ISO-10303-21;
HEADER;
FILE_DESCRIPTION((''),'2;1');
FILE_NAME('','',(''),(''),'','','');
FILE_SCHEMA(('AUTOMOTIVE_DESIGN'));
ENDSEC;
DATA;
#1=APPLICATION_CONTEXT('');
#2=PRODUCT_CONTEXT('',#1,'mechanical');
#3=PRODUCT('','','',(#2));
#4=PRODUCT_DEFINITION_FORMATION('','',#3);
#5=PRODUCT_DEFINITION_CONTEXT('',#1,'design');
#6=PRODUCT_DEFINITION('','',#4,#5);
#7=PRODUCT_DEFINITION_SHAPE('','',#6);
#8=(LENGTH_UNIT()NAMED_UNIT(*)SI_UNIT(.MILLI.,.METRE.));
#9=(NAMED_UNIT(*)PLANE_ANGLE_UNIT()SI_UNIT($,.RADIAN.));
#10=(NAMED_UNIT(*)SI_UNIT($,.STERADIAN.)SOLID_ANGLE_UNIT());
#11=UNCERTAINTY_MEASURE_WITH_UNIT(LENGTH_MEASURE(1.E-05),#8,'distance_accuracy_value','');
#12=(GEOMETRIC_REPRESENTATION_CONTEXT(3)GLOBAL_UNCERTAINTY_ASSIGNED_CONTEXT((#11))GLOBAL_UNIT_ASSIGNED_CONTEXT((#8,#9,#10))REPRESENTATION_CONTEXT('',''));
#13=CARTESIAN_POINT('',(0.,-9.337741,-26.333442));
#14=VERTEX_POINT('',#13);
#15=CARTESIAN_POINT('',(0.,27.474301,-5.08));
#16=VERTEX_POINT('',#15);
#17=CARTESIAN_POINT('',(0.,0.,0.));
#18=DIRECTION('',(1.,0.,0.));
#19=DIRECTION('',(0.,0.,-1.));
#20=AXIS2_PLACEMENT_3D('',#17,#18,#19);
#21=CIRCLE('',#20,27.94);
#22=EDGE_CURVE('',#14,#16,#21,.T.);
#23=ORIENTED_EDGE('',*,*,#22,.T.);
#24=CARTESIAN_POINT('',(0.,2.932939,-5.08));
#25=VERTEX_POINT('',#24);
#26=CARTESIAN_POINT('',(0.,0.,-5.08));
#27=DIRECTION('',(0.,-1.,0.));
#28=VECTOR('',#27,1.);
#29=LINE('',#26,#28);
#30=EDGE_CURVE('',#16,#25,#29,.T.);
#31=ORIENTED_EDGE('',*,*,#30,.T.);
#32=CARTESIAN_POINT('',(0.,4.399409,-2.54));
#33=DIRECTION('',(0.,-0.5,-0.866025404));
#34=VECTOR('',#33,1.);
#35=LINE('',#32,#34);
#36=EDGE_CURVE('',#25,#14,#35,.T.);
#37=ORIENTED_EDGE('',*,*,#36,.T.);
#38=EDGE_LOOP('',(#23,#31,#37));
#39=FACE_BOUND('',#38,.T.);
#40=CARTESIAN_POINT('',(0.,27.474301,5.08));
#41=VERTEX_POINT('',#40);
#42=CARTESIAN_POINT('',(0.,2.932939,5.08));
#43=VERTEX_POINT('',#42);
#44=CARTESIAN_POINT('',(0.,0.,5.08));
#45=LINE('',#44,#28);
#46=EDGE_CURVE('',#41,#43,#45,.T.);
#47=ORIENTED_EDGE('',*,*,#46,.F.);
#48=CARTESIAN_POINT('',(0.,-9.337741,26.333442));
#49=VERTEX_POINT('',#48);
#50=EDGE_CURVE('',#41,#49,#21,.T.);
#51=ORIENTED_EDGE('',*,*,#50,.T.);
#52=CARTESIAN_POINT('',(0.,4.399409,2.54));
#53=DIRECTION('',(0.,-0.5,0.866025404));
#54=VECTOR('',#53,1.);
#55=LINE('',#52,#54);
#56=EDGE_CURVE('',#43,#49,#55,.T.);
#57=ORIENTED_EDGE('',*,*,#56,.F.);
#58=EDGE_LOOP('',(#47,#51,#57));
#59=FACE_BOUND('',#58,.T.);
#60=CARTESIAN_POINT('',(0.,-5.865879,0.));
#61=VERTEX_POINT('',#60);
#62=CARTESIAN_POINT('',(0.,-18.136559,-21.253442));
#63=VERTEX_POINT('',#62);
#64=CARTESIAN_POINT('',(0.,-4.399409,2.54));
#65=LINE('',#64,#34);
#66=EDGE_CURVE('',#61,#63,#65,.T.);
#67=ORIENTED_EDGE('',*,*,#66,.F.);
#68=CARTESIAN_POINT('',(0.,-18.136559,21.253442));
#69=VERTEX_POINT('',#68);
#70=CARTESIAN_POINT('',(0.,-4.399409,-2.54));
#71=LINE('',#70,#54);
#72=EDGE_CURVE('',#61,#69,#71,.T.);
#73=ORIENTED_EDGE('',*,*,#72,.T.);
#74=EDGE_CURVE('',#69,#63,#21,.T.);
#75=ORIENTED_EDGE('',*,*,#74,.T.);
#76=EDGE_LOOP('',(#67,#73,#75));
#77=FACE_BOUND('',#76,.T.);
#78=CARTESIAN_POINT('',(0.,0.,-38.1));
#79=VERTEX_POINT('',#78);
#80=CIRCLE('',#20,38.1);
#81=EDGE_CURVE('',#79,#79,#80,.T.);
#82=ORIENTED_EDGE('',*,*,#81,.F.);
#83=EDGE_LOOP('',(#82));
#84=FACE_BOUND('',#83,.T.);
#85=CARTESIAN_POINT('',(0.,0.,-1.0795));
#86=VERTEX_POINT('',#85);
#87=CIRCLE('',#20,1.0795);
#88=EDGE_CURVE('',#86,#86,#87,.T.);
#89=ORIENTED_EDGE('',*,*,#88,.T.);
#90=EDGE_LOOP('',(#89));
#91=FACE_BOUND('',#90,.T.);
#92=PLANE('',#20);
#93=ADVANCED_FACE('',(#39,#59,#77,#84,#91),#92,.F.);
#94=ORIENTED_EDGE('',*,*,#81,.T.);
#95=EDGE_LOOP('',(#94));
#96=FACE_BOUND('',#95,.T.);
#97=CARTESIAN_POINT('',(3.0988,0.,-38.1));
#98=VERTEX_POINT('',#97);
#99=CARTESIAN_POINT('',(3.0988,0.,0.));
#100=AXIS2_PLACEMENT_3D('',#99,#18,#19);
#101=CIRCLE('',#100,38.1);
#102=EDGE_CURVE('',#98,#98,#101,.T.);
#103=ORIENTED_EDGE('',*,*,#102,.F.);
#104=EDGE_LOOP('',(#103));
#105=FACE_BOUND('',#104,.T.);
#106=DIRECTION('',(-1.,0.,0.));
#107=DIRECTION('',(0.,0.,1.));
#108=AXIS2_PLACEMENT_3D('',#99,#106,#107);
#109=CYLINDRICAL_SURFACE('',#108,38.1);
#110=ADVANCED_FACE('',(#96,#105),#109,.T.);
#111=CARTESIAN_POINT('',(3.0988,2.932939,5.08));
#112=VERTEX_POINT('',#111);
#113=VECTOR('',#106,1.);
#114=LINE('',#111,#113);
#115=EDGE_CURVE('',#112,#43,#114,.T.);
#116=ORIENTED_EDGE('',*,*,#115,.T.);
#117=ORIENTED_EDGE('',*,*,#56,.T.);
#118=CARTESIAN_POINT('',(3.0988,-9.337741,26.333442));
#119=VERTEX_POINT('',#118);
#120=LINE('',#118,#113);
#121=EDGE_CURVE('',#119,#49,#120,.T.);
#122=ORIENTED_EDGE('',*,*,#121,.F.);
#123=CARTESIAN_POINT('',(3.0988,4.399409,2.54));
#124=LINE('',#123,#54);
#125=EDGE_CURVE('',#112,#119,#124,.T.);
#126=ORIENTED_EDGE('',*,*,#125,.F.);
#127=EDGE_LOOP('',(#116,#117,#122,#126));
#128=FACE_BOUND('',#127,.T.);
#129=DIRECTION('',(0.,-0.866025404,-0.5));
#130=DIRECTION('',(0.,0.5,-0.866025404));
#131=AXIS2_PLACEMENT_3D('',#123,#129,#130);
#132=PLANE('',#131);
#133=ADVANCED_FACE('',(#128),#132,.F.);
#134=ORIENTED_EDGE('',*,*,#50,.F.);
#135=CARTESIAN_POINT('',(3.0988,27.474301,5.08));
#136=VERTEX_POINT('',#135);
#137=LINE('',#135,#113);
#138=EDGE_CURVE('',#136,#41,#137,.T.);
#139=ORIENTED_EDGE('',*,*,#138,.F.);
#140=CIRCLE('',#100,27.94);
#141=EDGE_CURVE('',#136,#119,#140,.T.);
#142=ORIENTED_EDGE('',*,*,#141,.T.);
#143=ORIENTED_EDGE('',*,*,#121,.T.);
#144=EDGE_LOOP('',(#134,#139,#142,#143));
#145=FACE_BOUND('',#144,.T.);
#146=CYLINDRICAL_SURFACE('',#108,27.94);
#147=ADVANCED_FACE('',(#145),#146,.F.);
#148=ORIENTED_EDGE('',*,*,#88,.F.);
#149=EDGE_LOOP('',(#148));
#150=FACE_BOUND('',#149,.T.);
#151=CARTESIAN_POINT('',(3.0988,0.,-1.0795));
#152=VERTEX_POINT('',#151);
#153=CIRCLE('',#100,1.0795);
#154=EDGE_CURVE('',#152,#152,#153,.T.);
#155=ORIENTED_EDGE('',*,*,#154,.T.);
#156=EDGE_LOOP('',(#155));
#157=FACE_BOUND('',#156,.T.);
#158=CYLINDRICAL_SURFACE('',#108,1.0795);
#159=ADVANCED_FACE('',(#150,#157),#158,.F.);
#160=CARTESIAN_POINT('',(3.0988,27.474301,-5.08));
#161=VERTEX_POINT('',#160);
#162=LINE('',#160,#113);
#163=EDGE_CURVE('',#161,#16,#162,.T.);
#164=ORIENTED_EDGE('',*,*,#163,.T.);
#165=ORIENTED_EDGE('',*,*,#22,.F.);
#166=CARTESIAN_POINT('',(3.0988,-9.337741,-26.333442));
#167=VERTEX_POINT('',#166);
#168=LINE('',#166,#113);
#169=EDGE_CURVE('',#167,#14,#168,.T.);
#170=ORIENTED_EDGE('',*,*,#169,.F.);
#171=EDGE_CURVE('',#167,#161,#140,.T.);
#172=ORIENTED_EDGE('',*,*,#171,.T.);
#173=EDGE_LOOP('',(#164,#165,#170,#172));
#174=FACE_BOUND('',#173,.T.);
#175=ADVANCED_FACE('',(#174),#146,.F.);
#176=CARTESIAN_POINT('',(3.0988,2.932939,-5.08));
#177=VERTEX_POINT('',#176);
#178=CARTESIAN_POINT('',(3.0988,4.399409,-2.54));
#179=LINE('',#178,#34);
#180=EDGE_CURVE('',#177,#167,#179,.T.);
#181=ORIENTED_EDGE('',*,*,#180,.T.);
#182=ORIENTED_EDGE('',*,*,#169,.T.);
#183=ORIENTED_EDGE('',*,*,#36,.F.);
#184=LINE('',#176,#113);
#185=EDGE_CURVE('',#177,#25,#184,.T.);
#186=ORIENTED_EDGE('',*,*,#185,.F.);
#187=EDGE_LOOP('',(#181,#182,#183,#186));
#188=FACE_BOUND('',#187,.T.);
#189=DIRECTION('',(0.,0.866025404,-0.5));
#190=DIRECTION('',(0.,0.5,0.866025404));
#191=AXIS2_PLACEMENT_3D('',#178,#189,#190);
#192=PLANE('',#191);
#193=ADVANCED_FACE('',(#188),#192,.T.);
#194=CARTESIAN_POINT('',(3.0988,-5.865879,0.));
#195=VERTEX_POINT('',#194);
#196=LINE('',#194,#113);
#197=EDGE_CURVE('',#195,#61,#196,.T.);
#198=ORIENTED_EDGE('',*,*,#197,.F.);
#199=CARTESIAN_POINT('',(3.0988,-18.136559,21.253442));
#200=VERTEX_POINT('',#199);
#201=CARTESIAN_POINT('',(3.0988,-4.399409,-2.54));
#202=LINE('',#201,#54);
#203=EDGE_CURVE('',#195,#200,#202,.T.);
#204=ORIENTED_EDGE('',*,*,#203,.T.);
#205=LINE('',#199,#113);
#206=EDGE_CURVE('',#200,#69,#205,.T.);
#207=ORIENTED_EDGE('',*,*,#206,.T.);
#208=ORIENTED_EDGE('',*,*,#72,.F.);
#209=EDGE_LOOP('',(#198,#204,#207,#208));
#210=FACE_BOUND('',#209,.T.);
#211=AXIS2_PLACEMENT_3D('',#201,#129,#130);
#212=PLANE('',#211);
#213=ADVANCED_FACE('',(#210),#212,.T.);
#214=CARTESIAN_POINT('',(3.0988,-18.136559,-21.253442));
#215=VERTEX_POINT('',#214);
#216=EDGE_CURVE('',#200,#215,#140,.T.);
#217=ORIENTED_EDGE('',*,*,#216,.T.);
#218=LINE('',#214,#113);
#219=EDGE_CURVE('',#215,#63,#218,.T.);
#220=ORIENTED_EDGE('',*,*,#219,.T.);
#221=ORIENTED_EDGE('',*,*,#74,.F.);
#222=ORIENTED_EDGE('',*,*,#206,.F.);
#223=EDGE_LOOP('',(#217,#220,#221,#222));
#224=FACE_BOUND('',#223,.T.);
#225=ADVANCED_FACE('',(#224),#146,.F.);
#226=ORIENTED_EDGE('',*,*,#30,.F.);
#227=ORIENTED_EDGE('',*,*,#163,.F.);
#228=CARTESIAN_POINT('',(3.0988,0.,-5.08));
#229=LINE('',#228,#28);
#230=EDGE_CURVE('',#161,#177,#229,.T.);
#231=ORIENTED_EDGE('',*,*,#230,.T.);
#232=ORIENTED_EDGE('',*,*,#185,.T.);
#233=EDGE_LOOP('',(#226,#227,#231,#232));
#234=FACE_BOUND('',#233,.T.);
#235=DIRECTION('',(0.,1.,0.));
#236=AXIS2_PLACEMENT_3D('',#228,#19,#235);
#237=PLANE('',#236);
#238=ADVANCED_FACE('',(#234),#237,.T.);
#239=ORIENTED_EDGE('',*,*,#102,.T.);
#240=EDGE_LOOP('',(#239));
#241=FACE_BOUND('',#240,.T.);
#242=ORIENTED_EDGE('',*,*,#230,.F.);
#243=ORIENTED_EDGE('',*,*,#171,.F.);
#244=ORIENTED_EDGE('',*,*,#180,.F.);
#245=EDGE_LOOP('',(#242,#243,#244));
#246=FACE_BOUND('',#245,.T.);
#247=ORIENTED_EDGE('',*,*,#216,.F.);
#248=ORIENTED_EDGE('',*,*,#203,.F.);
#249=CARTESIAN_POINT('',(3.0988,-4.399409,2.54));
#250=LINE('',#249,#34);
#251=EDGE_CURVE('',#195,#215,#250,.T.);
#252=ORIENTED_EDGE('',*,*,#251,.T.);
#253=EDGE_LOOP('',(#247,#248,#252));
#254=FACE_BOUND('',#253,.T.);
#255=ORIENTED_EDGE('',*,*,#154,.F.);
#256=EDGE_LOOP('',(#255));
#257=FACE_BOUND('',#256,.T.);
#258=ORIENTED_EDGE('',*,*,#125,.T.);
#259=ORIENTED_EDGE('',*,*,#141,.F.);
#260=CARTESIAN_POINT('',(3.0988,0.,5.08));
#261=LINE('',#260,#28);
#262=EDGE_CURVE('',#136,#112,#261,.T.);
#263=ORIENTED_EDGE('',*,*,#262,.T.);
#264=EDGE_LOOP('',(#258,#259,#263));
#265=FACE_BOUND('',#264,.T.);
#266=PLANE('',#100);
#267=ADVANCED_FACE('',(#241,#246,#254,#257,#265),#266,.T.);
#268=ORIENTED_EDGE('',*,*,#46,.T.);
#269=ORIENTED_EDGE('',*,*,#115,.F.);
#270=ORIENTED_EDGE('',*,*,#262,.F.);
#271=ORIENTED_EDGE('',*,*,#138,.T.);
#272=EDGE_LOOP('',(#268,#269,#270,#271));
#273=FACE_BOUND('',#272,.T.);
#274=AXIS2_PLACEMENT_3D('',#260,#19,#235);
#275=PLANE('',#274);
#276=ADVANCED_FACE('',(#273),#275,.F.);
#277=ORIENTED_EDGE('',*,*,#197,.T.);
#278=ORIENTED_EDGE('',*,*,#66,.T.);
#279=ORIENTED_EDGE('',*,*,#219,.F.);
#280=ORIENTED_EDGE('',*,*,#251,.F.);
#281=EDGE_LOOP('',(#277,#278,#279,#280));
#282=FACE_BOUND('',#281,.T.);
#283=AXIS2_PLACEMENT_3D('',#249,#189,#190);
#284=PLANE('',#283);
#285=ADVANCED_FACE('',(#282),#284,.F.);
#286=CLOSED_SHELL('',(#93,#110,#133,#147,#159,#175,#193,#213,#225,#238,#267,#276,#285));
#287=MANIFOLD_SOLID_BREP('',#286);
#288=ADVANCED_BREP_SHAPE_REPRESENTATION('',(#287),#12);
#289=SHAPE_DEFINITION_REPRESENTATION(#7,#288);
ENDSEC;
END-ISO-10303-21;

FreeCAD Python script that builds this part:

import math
import FreeCAD as App
import Part
import Sketcher
from FreeCAD import Vector
Q = App.Units.Quantity

doc = App.newDocument("Part")
body = doc.addObject("PartDesign::Body", "Body")

# Sketch on YZ plane
sketch1 = doc.addObject("Sketcher::SketchObject", "Sketch")
body.addObject(sketch1)
sketch1.AttachmentSupport = (doc.YZ_Plane, [""])
sketch1.MapMode = "FlatFace"
sketch1.addGeometry(Part.Circle(Vector(0, 0, 0), Vector(0, 0, 1), 38), False)
sketch1.addConstraint([
    Sketcher.Constraint("Coincident", 0, 3, -1, 1),
    Sketcher.Constraint("Diameter", 0, Q("3 in")),
])
pad1 = doc.addObject("PartDesign::Pad", "Pad")
body.addObject(pad1)
pad1.Profile = sketch1
pad1.Length = Q("0.122 in")

# Sketch on YZ plane
sketch2 = doc.addObject("Sketcher::SketchObject", "Sketch001")
body.addObject(sketch2)
sketch2.AttachmentSupport = (doc.YZ_Plane, [""])
sketch2.MapMode = "FlatFace"
sketch2.addGeometry([
    Part.LineSegment(Vector(-18.1, -21.3, 0), Vector(-5.9, 0, 0)),  # 0
    Part.LineSegment(Vector(-5.9, 0, 0), Vector(-18.1, 21.3, 0)),  # 1
    Part.ArcOfCircle(Part.Circle(Vector(0, 0, 0), Vector(0, 0, 1), 27.9), math.radians(130), math.radians(230)),  # 2
    Part.LineSegment(Vector(-9.3, 26.3, 0), Vector(2.9, 5.1, 0)),  # 3
    Part.LineSegment(Vector(2.9, 5.1, 0), Vector(27.5, 5.1, 0)),  # 4
    Part.ArcOfCircle(Part.Circle(Vector(0, 0, 0), Vector(0, 0, 1), 27.9), math.radians(10), math.radians(110)),  # 5
    Part.LineSegment(Vector(2.9, -5.1, 0), Vector(-9.3, -26.3, 0)),  # 6
    Part.ArcOfCircle(Part.Circle(Vector(0, 0, 0), Vector(0, 0, 1), 27.9), math.radians(-109.52), math.radians(-90)),  # 7
    Part.ArcOfCircle(Part.Circle(Vector(0, 0, 0), Vector(0, 0, 1), 27.9), math.radians(-90), math.radians(-10)),  # 8
    Part.LineSegment(Vector(27.5, -5.1, 0), Vector(2.9, -5.1, 0)),  # 9
    Part.Circle(Vector(0, 0, 0), Vector(0, 0, 1), 1.1),  # 10
], False)
sketch2.addConstraint([
    Sketcher.Constraint("Coincident", 0, 2, 1, 1),
    Sketcher.Constraint("Coincident", 1, 2, 2, 1),
    Sketcher.Constraint("Coincident", 2, 2, 0, 1),
    Sketcher.Constraint("Coincident", 3, 2, 4, 1),
    Sketcher.Constraint("Coincident", 4, 2, 5, 1),
    Sketcher.Constraint("Coincident", 5, 2, 3, 1),
    Sketcher.Constraint("Coincident", 6, 2, 7, 1),
    Sketcher.Constraint("Tangent", 7, 2, 8, 1),
    Sketcher.Constraint("Coincident", 8, 2, 9, 1),
    Sketcher.Constraint("Coincident", 9, 2, 6, 1),
    Sketcher.Constraint("Horizontal", 4),
    Sketcher.Constraint("Horizontal", 9),
    Sketcher.Constraint("Coincident", 2, 3, -1, 1),
    Sketcher.Constraint("Coincident", 5, 3, -1, 1),
    Sketcher.Constraint("Coincident", 7, 3, -1, 1),
    Sketcher.Constraint("Coincident", 10, 3, -1, 1),
    Sketcher.Constraint("Equal", 2, 5),
    Sketcher.Constraint("Equal", 5, 7),
    Sketcher.Constraint("Equal", 7, 8),
    Sketcher.Constraint("Symmetric", 3, 2, 9, 2, -1),
    Sketcher.Constraint("PointOnObject", 0, 2, -1),
    Sketcher.Constraint("PointOnObject", 7, 2, -2),
    Sketcher.Constraint("Parallel", 1, 3),
    Sketcher.Constraint("Parallel", 0, 6),
    Sketcher.Constraint("Vertical", 1, 2, 2, 2),
    Sketcher.Constraint("Equal", 1, 3),
    Sketcher.Constraint("Radius", 2, Q("1.1 in")),
    Sketcher.Constraint("Diameter", 10, Q("0.085 in")),
    Sketcher.Constraint("Angle", 0, Q("60 deg")),
    Sketcher.Constraint("DistanceY", -1, 1, 3, 2, Q("0.2 in")),
    Sketcher.Constraint("DistanceX", 4, 1, 4, 2, 24.541361),
])
pocket1 = doc.addObject("PartDesign::Pocket", "Pocket")
body.addObject(pocket1)
pocket1.Profile = sketch2
pocket1.Type = "ThroughAll"
pocket1.Reversed = True

doc.recompute()
